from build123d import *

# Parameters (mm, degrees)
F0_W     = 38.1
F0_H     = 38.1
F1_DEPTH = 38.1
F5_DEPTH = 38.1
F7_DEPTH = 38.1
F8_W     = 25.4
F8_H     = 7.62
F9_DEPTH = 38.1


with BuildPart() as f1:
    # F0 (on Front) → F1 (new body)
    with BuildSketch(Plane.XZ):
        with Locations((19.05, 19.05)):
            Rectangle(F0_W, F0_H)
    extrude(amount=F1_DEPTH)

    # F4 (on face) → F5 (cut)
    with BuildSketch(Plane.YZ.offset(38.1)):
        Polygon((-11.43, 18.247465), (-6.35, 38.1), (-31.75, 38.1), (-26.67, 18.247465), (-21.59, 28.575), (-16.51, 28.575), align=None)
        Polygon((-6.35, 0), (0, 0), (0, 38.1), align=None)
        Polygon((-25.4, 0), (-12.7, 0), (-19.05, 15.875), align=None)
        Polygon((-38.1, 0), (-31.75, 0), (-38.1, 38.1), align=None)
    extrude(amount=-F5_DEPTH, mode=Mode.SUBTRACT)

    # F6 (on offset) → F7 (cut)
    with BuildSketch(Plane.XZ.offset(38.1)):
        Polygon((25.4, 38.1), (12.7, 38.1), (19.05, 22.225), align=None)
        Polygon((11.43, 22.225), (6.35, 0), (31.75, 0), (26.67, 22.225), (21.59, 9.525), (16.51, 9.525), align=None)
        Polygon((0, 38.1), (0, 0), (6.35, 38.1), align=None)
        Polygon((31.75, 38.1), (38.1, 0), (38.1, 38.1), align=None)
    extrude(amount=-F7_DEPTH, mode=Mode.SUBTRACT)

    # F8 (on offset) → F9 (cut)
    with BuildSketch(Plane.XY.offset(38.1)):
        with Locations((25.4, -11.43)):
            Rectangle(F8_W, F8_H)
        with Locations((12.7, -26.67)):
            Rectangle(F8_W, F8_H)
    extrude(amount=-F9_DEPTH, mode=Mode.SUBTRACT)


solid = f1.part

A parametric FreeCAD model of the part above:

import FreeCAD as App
import Part
import Sketcher
from FreeCAD import Vector
Q = App.Units.Quantity

doc = App.newDocument("Part")
params = doc.addObject("Spreadsheet::Sheet", "Params")
for row, (alias, value) in enumerate([
    ("sketch1_width", "1.5 in"),
    ("pad1_length", "1.5 in"),
    ("sketch2_width", "1 in"),
    ("sketch2_width2", "0.2 in"),
    ("sketch2_width3", "0.5 in"),
    ("sketch2_height", "1.5 in"),
    ("pocket1_length", "1.5 in"),
    ("sketch3_width", "1 in"),
    ("sketch3_width2", "0.5 in"),
    ("sketch3_width3", "0.2 in"),
    ("sketch3_height", "1.5 in"),
    ("pocket2_length", "1.5 in"),
    ("sketch4_width", "1 in"),
    ("sketch4_height", "0.3 in"),
    ("pocket3_length", "1.5 in"),
], start=1):
    params.set(f"A{row}", alias)
    params.set(f"B{row}", "=" + value)
    params.setAlias(f"B{row}", alias)

body = doc.addObject("PartDesign::Body", "Body")

sketch1 = body.newObject("Sketcher::SketchObject", "Sketch")
sketch1.AttachmentSupport = (doc.getObject("XZ_Plane"), [""])
sketch1.MapMode = "FlatFace"
sketch1.addGeometry([
    Part.LineSegment(Vector(0, 38, 0), Vector(0, 0, 0)),
    Part.LineSegment(Vector(0, 0, 0), Vector(38, 0, 0)),
    Part.LineSegment(Vector(38, 0, 0), Vector(38, 38, 0)),
    Part.LineSegment(Vector(38, 38, 0), Vector(0, 38, 0)),
], False)
sketch1.addConstraint([
    Sketcher.Constraint("Coincident", 0, 2, 1, 1),
    Sketcher.Constraint("Coincident", 1, 2, 2, 1),
    Sketcher.Constraint("Coincident", 2, 2, 3, 1),
    Sketcher.Constraint("Coincident", 3, 2, 0, 1),
    Sketcher.Constraint("Vertical", 0),
    Sketcher.Constraint("Horizontal", 1),
    Sketcher.Constraint("Vertical", 2),
    Sketcher.Constraint("Horizontal", 3),
    Sketcher.Constraint("Coincident", 0, 2, -1, 1),
    Sketcher.Constraint("Equal", 3, 0),
    Sketcher.Constraint("DistanceX", 1, 1, 1, 2, Q("1.5 in")),
])
sketch1.setExpression("Constraints[10]", "Params.sketch1_width")
pad1 = body.newObject("PartDesign::Pad", "Pad")
pad1.Profile = sketch1
pad1.setExpression("Length", "Params.pad1_length")

sketch2 = body.newObject("Sketcher::SketchObject", "Sketch001")
sketch2.AttachmentSupport = (doc.getObject("YZ_Plane"), [""])
sketch2.MapMode = "FlatFace"
sketch2.AttachmentOffset = App.Placement(Vector(0, 0, 1.5 * 25.4), App.Rotation())
sketch2.addGeometry([
    Part.LineSegment(Vector(-11, 18, 0), Vector(-6, 38, 0)),
    Part.LineSegment(Vector(-6, 38, 0), Vector(-32, 38, 0)),
    Part.LineSegment(Vector(-32, 38, 0), Vector(-27, 18, 0)),
    Part.LineSegment(Vector(-27, 18, 0), Vector(-22, 29, 0)),
    Part.LineSegment(Vector(-22, 29, 0), Vector(-17, 29, 0)),
    Part.LineSegment(Vector(-17, 29, 0), Vector(-11, 18, 0)),
    Part.LineSegment(Vector(-6, 0, 0), Vector(0, 0, 0)),
    Part.LineSegment(Vector(0, 0, 0), Vector(0, 38, 0)),
    Part.LineSegment(Vector(0, 38, 0), Vector(-6, 0, 0)),
    Part.LineSegment(Vector(-25, 0, 0), Vector(-13, 0, 0)),
    Part.LineSegment(Vector(-13, 0, 0), Vector(-19, 16, 0)),
    Part.LineSegment(Vector(-19, 16, 0), Vector(-25, 0, 0)),
    Part.LineSegment(Vector(-38, 0, 0), Vector(-32, 0, 0)),
    Part.LineSegment(Vector(-32, 0, 0), Vector(-38, 38, 0)),
    Part.LineSegment(Vector(-38, 38, 0), Vector(-38, 0, 0)),
], False)
sketch2.addConstraint([
    Sketcher.Constraint("Coincident", 0, 2, 1, 1),
    Sketcher.Constraint("Coincident", 1, 2, 2, 1),
    Sketcher.Constraint("Coincident", 2, 2, 3, 1),
    Sketcher.Constraint("Coincident", 3, 2, 4, 1),
    Sketcher.Constraint("Coincident", 4, 2, 5, 1),
    Sketcher.Constraint("Coincident", 5, 2, 0, 1),
    Sketcher.Constraint("Coincident", 6, 2, 7, 1),
    Sketcher.Constraint("Coincident", 7, 2, 8, 1),
    Sketcher.Constraint("Coincident", 8, 2, 6, 1),
    Sketcher.Constraint("Coincident", 9, 2, 10, 1),
    Sketcher.Constraint("Coincident", 10, 2, 11, 1),
    Sketcher.Constraint("Coincident", 11, 2, 9, 1),
    Sketcher.Constraint("Coincident", 12, 2, 13, 1),
    Sketcher.Constraint("Coincident", 13, 2, 14, 1),
    Sketcher.Constraint("Coincident", 14, 2, 12, 1),
    Sketcher.Constraint("Horizontal", 1),
    Sketcher.Constraint("Horizontal", 4),
    Sketcher.Constraint("Horizontal", 6),
    Sketcher.Constraint("Vertical", 7),
    Sketcher.Constraint("Horizontal", 9),
    Sketcher.Constraint("Horizontal", 12),
    Sketcher.Constraint("Vertical", 14),
    Sketcher.Constraint("Coincident", 6, 2, -1, 1),
    Sketcher.Constraint("PointOnObject", 9, 2, -1),
    Sketcher.Constraint("PointOnObject", 12, 2, -1),
    Sketcher.Constraint("Horizontal", 2, 2, 5, 2),
    Sketcher.Constraint("Horizontal", 1, 2, 7, 2),
    Sketcher.Constraint("Horizontal", 7, 2, 13, 2),
    Sketcher.Constraint("Vertical", 0, 2, 8, 2),
    Sketcher.Constraint("Vertical", 1, 2, 12, 2),
    Sketcher.Constraint("Equal", 6, 12),
    Sketcher.Constraint("Equal", 0, 2),
    Sketcher.Constraint("Equal", 3, 5),
    Sketcher.Constraint("Equal", 10, 11),
    Sketcher.Constraint("DistanceX", 1, 2, 1, 1, Q("1 in")),
    Sketcher.Constraint("DistanceX", 4, 1, 4, 2, Q("0.2 in")),
    Sketcher.Constraint("DistanceX", 9, 1, 9, 2, Q("0.5 in")),
    Sketcher.Constraint("DistanceY", 7, 1, 7, 2, Q("1.5 in")),
    Sketcher.Constraint("DistanceX", 11, 2, -1, 1, Q("1 in")),
    Sketcher.Constraint("DistanceX", 14, 2, 9, 2, Q("1 in")),
    Sketcher.Constraint("DistanceX", 1, 2, 2, 2, Q("0.2 in")),
    Sketcher.Constraint("DistanceY", 10, 2, 3, 2, Q("0.5 in")),
    Sketcher.Constraint("DistanceY", -1, 1, 3, 2, Q("1.125 in")),
    Sketcher.Constraint("Distance", 0, Q("20.492183 mm")),
])
sketch2.setExpression("Constraints[34]", "Params.sketch2_width")
sketch2.setExpression("Constraints[35]", "Params.sketch2_width2")
sketch2.setExpression("Constraints[36]", "Params.sketch2_width3")
sketch2.setExpression("Constraints[37]", "Params.sketch2_height")
pocket1 = body.newObject("PartDesign::Pocket", "Pocket")
pocket1.Profile = sketch2
pocket1.setExpression("Length", "Params.pocket1_length")

sketch3 = body.newObject("Sketcher::SketchObject", "Sketch002")
sketch3.AttachmentSupport = (doc.getObject("XZ_Plane"), [""])
sketch3.MapMode = "FlatFace"
sketch3.AttachmentOffset = App.Placement(Vector(0, 0, 1.5 * 25.4), App.Rotation())
sketch3.addGeometry([
    Part.LineSegment(Vector(25, 38, 0), Vector(13, 38, 0)),
    Part.LineSegment(Vector(13, 38, 0), Vector(19, 22, 0)),
    Part.LineSegment(Vector(19, 22, 0), Vector(25, 38, 0)),
    Part.LineSegment(Vector(11, 22, 0), Vector(6, 0, 0)),
    Part.LineSegment(Vector(6, 0, 0), Vector(32, 0, 0)),
    Part.LineSegment(Vector(32, 0, 0), Vector(27, 22, 0)),
    Part.LineSegment(Vector(27, 22, 0), Vector(22, 10, 0)),
    Part.LineSegment(Vector(22, 10, 0), Vector(17, 10, 0)),
    Part.LineSegment(Vector(17, 10, 0), Vector(11, 22, 0)),
    Part.LineSegment(Vector(0, 38, 0), Vector(0, 0, 0)),
    Part.LineSegment(Vector(0, 0, 0), Vector(6, 38, 0)),
    Part.LineSegment(Vector(6, 38, 0), Vector(0, 38, 0)),
    Part.LineSegment(Vector(32, 38, 0), Vector(38, 0, 0)),
    Part.LineSegment(Vector(38, 0, 0), Vector(38, 38, 0)),
    Part.LineSegment(Vector(38, 38, 0), Vector(32, 38, 0)),
], False)
sketch3.addConstraint([
    Sketcher.Constraint("Coincident", 0, 2, 1, 1),
    Sketcher.Constraint("Coincident", 1, 2, 2, 1),
    Sketcher.Constraint("Coincident", 2, 2, 0, 1),
    Sketcher.Constraint("Coincident", 3, 2, 4, 1),
    Sketcher.Constraint("Coincident", 4, 2, 5, 1),
    Sketcher.Constraint("Coincident", 5, 2, 6, 1),
    Sketcher.Constraint("Coincident", 6, 2, 7, 1),
    Sketcher.Constraint("Coincident", 7, 2, 8, 1),
    Sketcher.Constraint("Coincident", 8, 2, 3, 1),
    Sketcher.Constraint("Coincident", 9, 2, 10, 1),
    Sketcher.Constraint("Coincident", 10, 2, 11, 1),
    Sketcher.Constraint("Coincident", 11, 2, 9, 1),
    Sketcher.Constraint("Coincident", 12, 2, 13, 1),
    Sketcher.Constraint("Coincident", 13, 2, 14, 1),
    Sketcher.Constraint("Coincident", 14, 2, 12, 1),
    Sketcher.Constraint("Horizontal", 0),
    Sketcher.Constraint("Horizontal", 4),
    Sketcher.Constraint("Horizontal", 7),
    Sketcher.Constraint("Vertical", 9),
    Sketcher.Constraint("Horizontal", 11),
    Sketcher.Constraint("Vertical", 13),
    Sketcher.Constraint("Horizontal", 14),
    Sketcher.Constraint("Coincident", 9, 2, -1, 1),
    Sketcher.Constraint("PointOnObject", 3, 2, -1),
    Sketcher.Constraint("PointOnObject", 12, 2, -1),
    Sketcher.Constraint("Parallel", 2, 6),
    Sketcher.Constraint("Parallel", 1, 8),
    Sketcher.Constraint("Horizontal", 1, 2, 5, 2),
    Sketcher.Constraint("Horizontal", 5, 2, 8, 2),
    Sketcher.Constraint("Horizontal", 2, 2, 10, 2),
    Sketcher.Constraint("Horizontal", 11, 2, 13, 2),
    Sketcher.Constraint("Vertical", 3, 2, 10, 2),
    Sketcher.Constraint("Vertical", 4, 2, 14, 2),
    Sketcher.Constraint("Equal", 11, 14),
    Sketcher.Constraint("Equal", 1, 2),
    Sketcher.Constraint("Equal", 3, 5),
    Sketcher.Constraint("DistanceX", 4, 1, 4, 2, Q("1 in")),
    Sketcher.Constraint("DistanceX", 0, 2, 0, 1, Q("0.5 in")),
    Sketcher.Constraint("DistanceX", 7, 2, 7, 1, Q("0.2 in")),
    Sketcher.Constraint("DistanceY", 9, 2, 9, 1, Q("1.5 in")),
    Sketcher.Constraint("DistanceX", -1, 1, 2, 2, Q("1 in")),
    Sketcher.Constraint("DistanceX", 0, 2, 13, 2, Q("1 in")),
    Sketcher.Constraint("DistanceX", 1, 2, 5, 2, Q("0.3 in")),
    Sketcher.Constraint("DistanceY", 6, 2, 1, 2, Q("0.5 in")),
])
sketch3.setExpression("Constraints[36]", "Params.sketch3_width")
sketch3.setExpression("Constraints[37]", "Params.sketch3_width2")
sketch3.setExpression("Constraints[38]", "Params.sketch3_width3")
sketch3.setExpression("Constraints[39]", "Params.sketch3_height")
pocket2 = body.newObject("PartDesign::Pocket", "Pocket001")
pocket2.Profile = sketch3
pocket2.setExpression("Length", "Params.pocket2_length")

sketch4 = body.newObject("Sketcher::SketchObject", "Sketch003")
sketch4.AttachmentSupport = (doc.getObject("XY_Plane"), [""])
sketch4.MapMode = "FlatFace"
sketch4.AttachmentOffset = App.Placement(Vector(0, 0, 1.5 * 25.4), App.Rotation())
sketch4.addGeometry([
    Part.LineSegment(Vector(13, -8, 0), Vector(13, -15, 0)),
    Part.LineSegment(Vector(13, -15, 0), Vector(38, -15, 0)),
    Part.LineSegment(Vector(38, -15, 0), Vector(38, -8, 0)),
    Part.LineSegment(Vector(38, -8, 0), Vector(13, -8, 0)),
    Part.LineSegment(Vector(0, -23, 0), Vector(0, -30, 0)),
    Part.LineSegment(Vector(0, -30, 0), Vector(25, -30, 0)),
    Part.LineSegment(Vector(25, -30, 0), Vector(25, -23, 0)),
    Part.LineSegment(Vector(25, -23, 0), Vector(0, -23, 0)),
], False)
sketch4.addConstraint([
    Sketcher.Constraint("Coincident", 0, 2, 1, 1),
    Sketcher.Constraint("Coincident", 1, 2, 2, 1),
    Sketcher.Constraint("Coincident", 2, 2, 3, 1),
    Sketcher.Constraint("Coincident", 3, 2, 0, 1),
    Sketcher.Constraint("Coincident", 4, 2, 5, 1),
    Sketcher.Constraint("Coincident", 5, 2, 6, 1),
    Sketcher.Constraint("Coincident", 6, 2, 7, 1),
    Sketcher.Constraint("Coincident", 7, 2, 4, 1),
    Sketcher.Constraint("Vertical", 0),
    Sketcher.Constraint("Horizontal", 1),
    Sketcher.Constraint("Vertical", 2),
    Sketcher.Constraint("Horizontal", 3),
    Sketcher.Constraint("Vertical", 4),
    Sketcher.Constraint("Horizontal", 5),
    Sketcher.Constraint("Vertical", 6),
    Sketcher.Constraint("Horizontal", 7),
    Sketcher.Constraint("PointOnObject", 4, 2, -2),
    Sketcher.Constraint("Equal", 3, 5),
    Sketcher.Constraint("Equal", 2, 4),
    Sketcher.Constraint("DistanceX", 1, 1, 1, 2, Q("1 in")),
    Sketcher.Constraint("DistanceY", 0, 2, 0, 1, Q("0.3 in")),
    Sketcher.Constraint("DistanceX", -1, 1, 0, 2, Q("0.5 in")),
    Sketcher.Constraint("DistanceY", 0, 2, -1, 1, Q("0.6 in")),
    Sketcher.Constraint("DistanceY", 4, 2, -1, 1, Q("1.2 in")),
])
sketch4.setExpression("Constraints[19]", "Params.sketch4_width")
sketch4.setExpression("Constraints[20]", "Params.sketch4_height")
pocket3 = body.newObject("PartDesign::Pocket", "Pocket002")
pocket3.Profile = sketch4
pocket3.setExpression("Length", "Params.pocket3_length")

doc.recompute()
